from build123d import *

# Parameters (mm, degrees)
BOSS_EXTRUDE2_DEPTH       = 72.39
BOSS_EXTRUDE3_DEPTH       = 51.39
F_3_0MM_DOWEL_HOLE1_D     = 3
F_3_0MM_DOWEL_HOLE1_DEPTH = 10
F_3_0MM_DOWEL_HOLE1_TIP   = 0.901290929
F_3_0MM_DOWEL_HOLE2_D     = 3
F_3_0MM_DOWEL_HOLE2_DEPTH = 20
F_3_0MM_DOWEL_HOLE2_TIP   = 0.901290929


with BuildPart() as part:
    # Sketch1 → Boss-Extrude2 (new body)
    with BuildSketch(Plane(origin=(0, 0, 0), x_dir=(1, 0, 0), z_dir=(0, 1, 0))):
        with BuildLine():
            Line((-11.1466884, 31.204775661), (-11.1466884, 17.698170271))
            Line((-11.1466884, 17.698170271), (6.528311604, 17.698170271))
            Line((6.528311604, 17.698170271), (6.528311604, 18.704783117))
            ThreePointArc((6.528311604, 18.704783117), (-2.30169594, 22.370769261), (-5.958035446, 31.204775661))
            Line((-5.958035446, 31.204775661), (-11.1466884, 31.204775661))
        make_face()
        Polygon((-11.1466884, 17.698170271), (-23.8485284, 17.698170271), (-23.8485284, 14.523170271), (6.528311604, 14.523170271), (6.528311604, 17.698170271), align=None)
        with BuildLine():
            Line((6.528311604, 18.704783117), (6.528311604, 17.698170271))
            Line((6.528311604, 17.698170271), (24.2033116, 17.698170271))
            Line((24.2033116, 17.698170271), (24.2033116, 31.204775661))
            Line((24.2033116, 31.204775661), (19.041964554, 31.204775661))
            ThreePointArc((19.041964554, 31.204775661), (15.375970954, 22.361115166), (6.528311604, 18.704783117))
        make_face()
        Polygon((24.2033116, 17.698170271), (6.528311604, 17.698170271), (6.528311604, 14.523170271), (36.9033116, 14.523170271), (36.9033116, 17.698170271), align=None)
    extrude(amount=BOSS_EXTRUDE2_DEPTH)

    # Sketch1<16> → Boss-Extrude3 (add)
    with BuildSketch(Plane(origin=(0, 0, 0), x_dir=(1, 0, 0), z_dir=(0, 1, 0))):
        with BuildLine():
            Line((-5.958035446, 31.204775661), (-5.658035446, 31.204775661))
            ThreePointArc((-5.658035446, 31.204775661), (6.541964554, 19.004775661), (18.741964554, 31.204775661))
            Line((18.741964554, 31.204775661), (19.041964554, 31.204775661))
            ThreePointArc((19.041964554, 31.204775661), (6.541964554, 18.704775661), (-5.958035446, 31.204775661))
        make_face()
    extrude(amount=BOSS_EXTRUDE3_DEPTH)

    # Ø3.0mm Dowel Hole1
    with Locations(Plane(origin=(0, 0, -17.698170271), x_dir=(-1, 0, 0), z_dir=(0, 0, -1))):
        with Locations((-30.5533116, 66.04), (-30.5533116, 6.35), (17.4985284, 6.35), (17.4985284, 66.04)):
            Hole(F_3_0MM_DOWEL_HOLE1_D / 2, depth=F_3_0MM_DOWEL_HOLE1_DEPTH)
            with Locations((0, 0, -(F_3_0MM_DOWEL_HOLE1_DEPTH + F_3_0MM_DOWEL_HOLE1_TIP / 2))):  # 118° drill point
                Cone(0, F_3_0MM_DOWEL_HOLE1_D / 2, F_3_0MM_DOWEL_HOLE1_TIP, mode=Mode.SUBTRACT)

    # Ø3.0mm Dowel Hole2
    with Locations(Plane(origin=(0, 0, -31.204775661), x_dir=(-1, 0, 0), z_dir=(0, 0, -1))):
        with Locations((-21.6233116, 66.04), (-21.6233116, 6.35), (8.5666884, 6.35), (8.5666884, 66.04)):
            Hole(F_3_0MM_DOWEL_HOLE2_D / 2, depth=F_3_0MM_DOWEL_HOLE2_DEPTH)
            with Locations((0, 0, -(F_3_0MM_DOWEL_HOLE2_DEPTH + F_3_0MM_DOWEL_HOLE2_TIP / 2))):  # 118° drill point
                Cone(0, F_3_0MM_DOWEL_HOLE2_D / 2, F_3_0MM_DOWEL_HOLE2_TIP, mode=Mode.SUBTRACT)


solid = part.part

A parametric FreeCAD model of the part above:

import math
import FreeCAD as App
import Part
import Sketcher
Q = App.Units.Quantity

doc = App.newDocument("Part")
body = doc.addObject("PartDesign::Body", "Body")

# Sketch on XZ plane
sketch1 = doc.addObject("Sketcher::SketchObject", "Sketch")
body.addObject(sketch1)
sketch1.AttachmentSupport = (doc.XZ_Plane, [""])
sketch1.MapMode = "FlatFace"
sketch1.addGeometry(Part.LineSegment(App.Vector(-11.1, -31.2, 0), App.Vector(-11.1, -17.7, 0)), False)
sketch1.addGeometry(Part.LineSegment(App.Vector(-11.1, -17.7, 0), App.Vector(-23.8, -17.7, 0)), False)
sketch1.addGeometry(Part.LineSegment(App.Vector(-23.8, -17.7, 0), App.Vector(-23.8, -14.5, 0)), False)
sketch1.addGeometry(Part.LineSegment(App.Vector(-23.8, -14.5, 0), App.Vector(36.9, -14.5, 0)), False)
sketch1.addGeometry(Part.LineSegment(App.Vector(36.9, -14.5, 0), App.Vector(36.9, -17.7, 0)), False)
sketch1.addGeometry(Part.LineSegment(App.Vector(36.9, -17.7, 0), App.Vector(24.2, -17.7, 0)), False)
sketch1.addGeometry(Part.LineSegment(App.Vector(24.2, -17.7, 0), App.Vector(24.2, -31.2, 0)), False)
sketch1.addGeometry(Part.LineSegment(App.Vector(24.2, -31.2, 0), App.Vector(19, -31.2, 0)), False)
sketch1.addGeometry(Part.ArcOfCircle(Part.Circle(App.Vector(6.5, -31.2, 0), App.Vector(0, 0, 1), 12.5), math.radians(0), math.radians(90)), False)
sketch1.addGeometry(Part.ArcOfCircle(Part.Circle(App.Vector(6.5, -31.2, 0), App.Vector(0, 0, 1), 12.5), math.radians(90), math.radians(180)), False)
sketch1.addGeometry(Part.LineSegment(App.Vector(-6, -31.2, 0), App.Vector(-11.1, -31.2, 0)), False)
sketch1.addConstraint(Sketcher.Constraint("Coincident", 0, 2, 1, 1))
sketch1.addConstraint(Sketcher.Constraint("Coincident", 1, 2, 2, 1))
sketch1.addConstraint(Sketcher.Constraint("Coincident", 2, 2, 3, 1))
sketch1.addConstraint(Sketcher.Constraint("Coincident", 3, 2, 4, 1))
sketch1.addConstraint(Sketcher.Constraint("Coincident", 4, 2, 5, 1))
sketch1.addConstraint(Sketcher.Constraint("Coincident", 5, 2, 6, 1))
sketch1.addConstraint(Sketcher.Constraint("Coincident", 6, 2, 7, 1))
sketch1.addConstraint(Sketcher.Constraint("Coincident", 7, 2, 8, 1))
sketch1.addConstraint(Sketcher.Constraint("Tangent", 8, 2, 9, 1))
sketch1.addConstraint(Sketcher.Constraint("Coincident", 9, 2, 10, 1))
sketch1.addConstraint(Sketcher.Constraint("Coincident", 10, 2, 0, 1))
sketch1.addConstraint(Sketcher.Constraint("Vertical", 0))
sketch1.addConstraint(Sketcher.Constraint("Horizontal", 1))
sketch1.addConstraint(Sketcher.Constraint("Vertical", 2))
sketch1.addConstraint(Sketcher.Constraint("Horizontal", 3))
sketch1.addConstraint(Sketcher.Constraint("Vertical", 4))
sketch1.addConstraint(Sketcher.Constraint("Horizontal", 5))
sketch1.addConstraint(Sketcher.Constraint("Vertical", 6))
sketch1.addConstraint(Sketcher.Constraint("Horizontal", 7))
sketch1.addConstraint(Sketcher.Constraint("Horizontal", 10))
sketch1.addConstraint(Sketcher.Constraint("Equal", 8, 9))
sketch1.addConstraint(Sketcher.Constraint("Horizontal", 1, 2, 4, 2))
sketch1.addConstraint(Sketcher.Constraint("Horizontal", 9, 3, 6, 2))
sketch1.addConstraint(Sketcher.Constraint("Horizontal", 7, 2, 9, 2))
sketch1.addConstraint(Sketcher.Constraint("Radius", 8, Q("12.5 mm")))
sketch1.addConstraint(Sketcher.Constraint("DistanceX", 5, 2, 5, 1, Q("12.7 mm")))
sketch1.addConstraint(Sketcher.Constraint("DistanceY", 2, 1, 2, 2, Q("3.175 mm")))
sketch1.addConstraint(Sketcher.Constraint("DistanceX", 0, 2, 3, 2, Q("48.05 mm")))
sketch1.addConstraint(Sketcher.Constraint("DistanceX", 8, 2, 5, 2, Q("17.675 mm")))
sketch1.addConstraint(Sketcher.Constraint("DistanceX", 1, 2, 1, 1, Q("12.70184 mm")))
sketch1.addConstraint(Sketcher.Constraint("DistanceX", 7, 2, 7, 1, Q("5.161347 mm")))
sketch1.addConstraint(Sketcher.Constraint("DistanceY", 0, 1, 0, 2, Q("13.506605 mm")))
sketch1.addConstraint(Sketcher.Constraint("DistanceX", 0, 2, -1, 1, Q("11.146688 mm")))
sketch1.addConstraint(Sketcher.Constraint("DistanceY", 0, 2, -1, 1, Q("17.69817 mm")))
pad1 = doc.addObject("PartDesign::Pad", "Pad")
body.addObject(pad1)
pad1.Profile = sketch1
pad1.Length = 72.39
pad1.Reversed = True

# Sketch on XZ plane
sketch2 = doc.addObject("Sketcher::SketchObject", "Sketch001")
body.addObject(sketch2)
sketch2.AttachmentSupport = (doc.XZ_Plane, [""])
sketch2.MapMode = "FlatFace"
sketch2.addGeometry(Part.LineSegment(App.Vector(-5.66, -31.2, 0), App.Vector(-5.96, -31.2, 0)), False)
sketch2.addGeometry(Part.ArcOfCircle(Part.Circle(App.Vector(6.54, -31.2, 0), App.Vector(0, 0, 1), 12.5), math.radians(0), math.radians(180)), False)
sketch2.addGeometry(Part.LineSegment(App.Vector(19.04, -31.2, 0), App.Vector(18.74, -31.2, 0)), False)
sketch2.addGeometry(Part.ArcOfCircle(Part.Circle(App.Vector(6.54, -31.2, 0), App.Vector(0, 0, 1), 12.2), math.radians(0), math.radians(180)), False)
sketch2.addConstraint(Sketcher.Constraint("Coincident", 0, 2, 1, 2))
sketch2.addConstraint(Sketcher.Constraint("Coincident", 1, 1, 2, 1))
sketch2.addConstraint(Sketcher.Constraint("Coincident", 2, 2, 3, 1))
sketch2.addConstraint(Sketcher.Constraint("Coincident", 3, 2, 0, 1))
sketch2.addConstraint(Sketcher.Constraint("Horizontal", 0))
sketch2.addConstraint(Sketcher.Constraint("Horizontal", 2))
sketch2.addConstraint(Sketcher.Constraint("Coincident", 3, 3, 1, 3))
sketch2.addConstraint(Sketcher.Constraint("Horizontal", 3, 3, 0, 2))
sketch2.addConstraint(Sketcher.Constraint("Horizontal", 0, 2, 1, 1))
sketch2.addConstraint(Sketcher.Constraint("Radius", 1, Q("12.5 mm")))
sketch2.addConstraint(Sketcher.Constraint("Radius", 3, Q("12.2 mm")))
sketch2.addConstraint(Sketcher.Constraint("DistanceX", -1, 1, 1, 3, Q("6.541965 mm")))
sketch2.addConstraint(Sketcher.Constraint("DistanceY", 1, 3, -1, 1, Q("31.204776 mm")))
pad2 = doc.addObject("PartDesign::Pad", "Pad001")
body.addObject(pad2)
pad2.Profile = sketch2
pad2.Length = 51.39
pad2.Reversed = True

# Sketch on XY plane
sketch3 = doc.addObject("Sketcher::SketchObject", "Sketch002")
body.addObject(sketch3)
sketch3.AttachmentSupport = (doc.XY_Plane, [""])
sketch3.MapMode = "FlatFace"
sketch3.AttachmentOffset = App.Placement(App.Vector(0, 0, -17.69817), App.Rotation())
sketch3.addGeometry(Part.Circle(App.Vector(30.6, 66, 0), App.Vector(0, 0, 1), 1.5), False)
sketch3.addGeometry(Part.Circle(App.Vector(30.6, 6.3, 0), App.Vector(0, 0, 1), 1.5), False)
sketch3.addGeometry(Part.Circle(App.Vector(-17.5, 6.3, 0), App.Vector(0, 0, 1), 1.5), False)
sketch3.addGeometry(Part.Circle(App.Vector(-17.5, 66, 0), App.Vector(0, 0, 1), 1.5), False)
sketch3.addConstraint(Sketcher.Constraint("Equal", 0, 1))
sketch3.addConstraint(Sketcher.Constraint("Equal", 1, 2))
sketch3.addConstraint(Sketcher.Constraint("Equal", 2, 3))
sketch3.addConstraint(Sketcher.Constraint("Horizontal", 1, 3, 2, 3))
sketch3.addConstraint(Sketcher.Constraint("Horizontal", 0, 3, 3, 3))
sketch3.addConstraint(Sketcher.Constraint("Vertical", 0, 3, 1, 3))
sketch3.addConstraint(Sketcher.Constraint("Vertical", 2, 3, 3, 3))
sketch3.addConstraint(Sketcher.Constraint("Diameter", 0, Q("3 mm")))
sketch3.addConstraint(Sketcher.Constraint("DistanceY", -1, 1, 0, 3, Q("66.04 mm")))
sketch3.addConstraint(Sketcher.Constraint("DistanceY", -1, 1, 1, 3, Q("6.35 mm")))
sketch3.addConstraint(Sketcher.Constraint("DistanceX", -1, 1, 0, 3, Q("30.553312 mm")))
sketch3.addConstraint(Sketcher.Constraint("DistanceX", 2, 3, -1, 1, Q("17.498528 mm")))
doc.recompute()
hole = doc.addObject("PartDesign::Hole", "Hole")
body.addObject(hole)
hole.Profile = sketch3
hole.ThreadType = "None"
hole.Diameter = 3
hole.DepthType = "Dimension"
hole.Depth = 10
hole.DrillPoint = "Angled"
hole.DrillPointAngle = 118
hole.Reversed = True

# Sketch on XY plane
sketch4 = doc.addObject("Sketcher::SketchObject", "Sketch003")
body.addObject(sketch4)
sketch4.AttachmentSupport = (doc.XY_Plane, [""])
sketch4.MapMode = "FlatFace"
sketch4.AttachmentOffset = App.Placement(App.Vector(0, 0, -31.204776), App.Rotation())
sketch4.addGeometry(Part.Circle(App.Vector(21.6, 66, 0), App.Vector(0, 0, 1), 1.5), False)
sketch4.addGeometry(Part.Circle(App.Vector(21.6, 6.3, 0), App.Vector(0, 0, 1), 1.5), False)
sketch4.addGeometry(Part.Circle(App.Vector(-8.6, 6.3, 0), App.Vector(0, 0, 1), 1.5), False)
sketch4.addGeometry(Part.Circle(App.Vector(-8.6, 66, 0), App.Vector(0, 0, 1), 1.5), False)
sketch4.addConstraint(Sketcher.Constraint("Equal", 0, 1))
sketch4.addConstraint(Sketcher.Constraint("Equal", 1, 2))
sketch4.addConstraint(Sketcher.Constraint("Equal", 2, 3))
sketch4.addConstraint(Sketcher.Constraint("Horizontal", 1, 3, 2, 3))
sketch4.addConstraint(Sketcher.Constraint("Horizontal", 0, 3, 3, 3))
sketch4.addConstraint(Sketcher.Constraint("Vertical", 0, 3, 1, 3))
sketch4.addConstraint(Sketcher.Constraint("Vertical", 2, 3, 3, 3))
sketch4.addConstraint(Sketcher.Constraint("Diameter", 0, Q("3 mm")))
sketch4.addConstraint(Sketcher.Constraint("DistanceY", -1, 1, 0, 3, Q("66.04 mm")))
sketch4.addConstraint(Sketcher.Constraint("DistanceY", -1, 1, 1, 3, Q("6.35 mm")))
sketch4.addConstraint(Sketcher.Constraint("DistanceX", 2, 3, 1, 3, Q("30.19 mm")))
sketch4.addConstraint(Sketcher.Constraint("DistanceX", -1, 1, 0, 3, Q("21.623312 mm")))
doc.recompute()
hole2 = doc.addObject("PartDesign::Hole", "Hole001")
body.addObject(hole2)
hole2.Profile = sketch4
hole2.ThreadType = "None"
hole2.Diameter = 3
hole2.DepthType = "Dimension"
hole2.Depth = 20
hole2.DrillPoint = "Angled"
hole2.DrillPointAngle = 118
hole2.Reversed = True

doc.recompute()
